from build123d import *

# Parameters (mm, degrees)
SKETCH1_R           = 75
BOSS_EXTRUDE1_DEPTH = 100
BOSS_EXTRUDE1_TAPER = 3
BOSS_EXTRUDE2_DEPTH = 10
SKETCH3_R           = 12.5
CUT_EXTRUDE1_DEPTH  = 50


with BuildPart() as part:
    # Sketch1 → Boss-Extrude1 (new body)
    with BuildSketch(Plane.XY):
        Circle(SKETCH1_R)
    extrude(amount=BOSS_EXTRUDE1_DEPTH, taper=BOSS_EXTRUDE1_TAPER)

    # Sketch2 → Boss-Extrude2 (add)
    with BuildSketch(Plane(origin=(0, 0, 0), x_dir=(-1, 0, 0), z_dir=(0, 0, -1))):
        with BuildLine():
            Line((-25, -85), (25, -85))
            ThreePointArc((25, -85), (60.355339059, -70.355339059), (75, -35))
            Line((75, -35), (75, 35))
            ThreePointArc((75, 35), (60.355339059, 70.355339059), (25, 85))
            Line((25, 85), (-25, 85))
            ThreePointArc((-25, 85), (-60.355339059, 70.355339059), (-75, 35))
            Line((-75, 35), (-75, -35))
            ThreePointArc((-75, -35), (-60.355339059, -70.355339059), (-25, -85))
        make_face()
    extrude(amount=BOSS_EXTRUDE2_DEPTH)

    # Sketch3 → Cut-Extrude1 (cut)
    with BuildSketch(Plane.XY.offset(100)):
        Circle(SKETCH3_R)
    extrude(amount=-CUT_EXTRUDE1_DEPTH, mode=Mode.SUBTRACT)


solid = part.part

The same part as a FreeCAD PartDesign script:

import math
import FreeCAD as App
import Part
import Sketcher

doc = App.newDocument("Part")
body = doc.addObject("PartDesign::Body", "Body")

# Sketch on XY plane
sketch1 = doc.addObject("Sketcher::SketchObject", "Sketch")
body.addObject(sketch1)
sketch1.AttachmentSupport = (doc.XY_Plane, [""])
sketch1.MapMode = "FlatFace"
sketch1.addGeometry(Part.Circle(App.Vector(0, 0, 0), App.Vector(0, 0, 1), 75), False)
sketch1.addConstraint(Sketcher.Constraint("Coincident", 0, 3, -1, 1))
sketch1.addConstraint(Sketcher.Constraint("Diameter", 0, 150.0))
pad1 = doc.addObject("PartDesign::Pad", "Pad")
body.addObject(pad1)
pad1.Profile = sketch1
pad1.Length = 100
pad1.TaperAngle = -3

# Sketch on XY plane
sketch2 = doc.addObject("Sketcher::SketchObject", "Sketch001")
body.addObject(sketch2)
sketch2.AttachmentSupport = (doc.XY_Plane, [""])
sketch2.MapMode = "FlatFace"
sketch2.addGeometry(Part.LineSegment(App.Vector(25, -85, 0), App.Vector(-25, -85, 0)), False)
sketch2.addGeometry(Part.ArcOfCircle(Part.Circle(App.Vector(-25, -35, 0), App.Vector(0, 0, 1), 50), math.radians(-180), math.radians(-90)), False)
sketch2.addGeometry(Part.LineSegment(App.Vector(-75, -35, 0), App.Vector(-75, 35, 0)), False)
sketch2.addGeometry(Part.ArcOfCircle(Part.Circle(App.Vector(-25, 35, 0), App.Vector(0, 0, 1), 50), math.radians(90), math.radians(180)), False)
sketch2.addGeometry(Part.LineSegment(App.Vector(-25, 85, 0), App.Vector(25, 85, 0)), False)
sketch2.addGeometry(Part.ArcOfCircle(Part.Circle(App.Vector(25, 35, 0), App.Vector(0, 0, 1), 50), math.radians(0), math.radians(90)), False)
sketch2.addGeometry(Part.LineSegment(App.Vector(75, 35, 0), App.Vector(75, -35, 0)), False)
sketch2.addGeometry(Part.ArcOfCircle(Part.Circle(App.Vector(25, -35, 0), App.Vector(0, 0, 1), 50), math.radians(-90), math.radians(0)), False)
sketch2.addConstraint(Sketcher.Constraint("Tangent", 0, 2, 1, 2))
sketch2.addConstraint(Sketcher.Constraint("Tangent", 1, 1, 2, 1))
sketch2.addConstraint(Sketcher.Constraint("Tangent", 2, 2, 3, 2))
sketch2.addConstraint(Sketcher.Constraint("Tangent", 3, 1, 4, 1))
sketch2.addConstraint(Sketcher.Constraint("Tangent", 4, 2, 5, 2))
sketch2.addConstraint(Sketcher.Constraint("Tangent", 5, 1, 6, 1))
sketch2.addConstraint(Sketcher.Constraint("Tangent", 6, 2, 7, 2))
sketch2.addConstraint(Sketcher.Constraint("Tangent", 7, 1, 0, 1))
sketch2.addConstraint(Sketcher.Constraint("Horizontal", 0))
sketch2.addConstraint(Sketcher.Constraint("Vertical", 2))
sketch2.addConstraint(Sketcher.Constraint("Horizontal", 4))
sketch2.addConstraint(Sketcher.Constraint("Vertical", 6))
sketch2.addConstraint(Sketcher.Constraint("Equal", 1, 3))
sketch2.addConstraint(Sketcher.Constraint("Equal", 3, 5))
sketch2.addConstraint(Sketcher.Constraint("Equal", 5, 7))
sketch2.addConstraint(Sketcher.Constraint("Symmetric", 1, 3, 5, 3, -1, 1))
sketch2.addConstraint(Sketcher.Constraint("Radius", 1, 50.0))
sketch2.addConstraint(Sketcher.Constraint("DistanceX", 0, 2, 0, 1, 50.0))
sketch2.addConstraint(Sketcher.Constraint("DistanceY", 2, 1, 2, 2, 70.0))
pad2 = doc.addObject("PartDesign::Pad", "Pad001")
body.addObject(pad2)
pad2.Profile = sketch2
pad2.Length = 10
pad2.Reversed = True

# Sketch on XY plane
sketch3 = doc.addObject("Sketcher::SketchObject", "Sketch002")
body.addObject(sketch3)
sketch3.AttachmentSupport = (doc.XY_Plane, [""])
sketch3.MapMode = "FlatFace"
sketch3.AttachmentOffset = App.Placement(App.Vector(0, 0, 100), App.Rotation())
sketch3.addGeometry(Part.Circle(App.Vector(0, 0, 0), App.Vector(0, 0, 1), 12.5), False)
sketch3.addConstraint(Sketcher.Constraint("Coincident", 0, 3, -1, 1))
sketch3.addConstraint(Sketcher.Constraint("Diameter", 0, 25.0))
pocket1 = doc.addObject("PartDesign::Pocket", "Pocket")
body.addObject(pocket1)
pocket1.Profile = sketch3
pocket1.Length = 50

doc.recompute()
